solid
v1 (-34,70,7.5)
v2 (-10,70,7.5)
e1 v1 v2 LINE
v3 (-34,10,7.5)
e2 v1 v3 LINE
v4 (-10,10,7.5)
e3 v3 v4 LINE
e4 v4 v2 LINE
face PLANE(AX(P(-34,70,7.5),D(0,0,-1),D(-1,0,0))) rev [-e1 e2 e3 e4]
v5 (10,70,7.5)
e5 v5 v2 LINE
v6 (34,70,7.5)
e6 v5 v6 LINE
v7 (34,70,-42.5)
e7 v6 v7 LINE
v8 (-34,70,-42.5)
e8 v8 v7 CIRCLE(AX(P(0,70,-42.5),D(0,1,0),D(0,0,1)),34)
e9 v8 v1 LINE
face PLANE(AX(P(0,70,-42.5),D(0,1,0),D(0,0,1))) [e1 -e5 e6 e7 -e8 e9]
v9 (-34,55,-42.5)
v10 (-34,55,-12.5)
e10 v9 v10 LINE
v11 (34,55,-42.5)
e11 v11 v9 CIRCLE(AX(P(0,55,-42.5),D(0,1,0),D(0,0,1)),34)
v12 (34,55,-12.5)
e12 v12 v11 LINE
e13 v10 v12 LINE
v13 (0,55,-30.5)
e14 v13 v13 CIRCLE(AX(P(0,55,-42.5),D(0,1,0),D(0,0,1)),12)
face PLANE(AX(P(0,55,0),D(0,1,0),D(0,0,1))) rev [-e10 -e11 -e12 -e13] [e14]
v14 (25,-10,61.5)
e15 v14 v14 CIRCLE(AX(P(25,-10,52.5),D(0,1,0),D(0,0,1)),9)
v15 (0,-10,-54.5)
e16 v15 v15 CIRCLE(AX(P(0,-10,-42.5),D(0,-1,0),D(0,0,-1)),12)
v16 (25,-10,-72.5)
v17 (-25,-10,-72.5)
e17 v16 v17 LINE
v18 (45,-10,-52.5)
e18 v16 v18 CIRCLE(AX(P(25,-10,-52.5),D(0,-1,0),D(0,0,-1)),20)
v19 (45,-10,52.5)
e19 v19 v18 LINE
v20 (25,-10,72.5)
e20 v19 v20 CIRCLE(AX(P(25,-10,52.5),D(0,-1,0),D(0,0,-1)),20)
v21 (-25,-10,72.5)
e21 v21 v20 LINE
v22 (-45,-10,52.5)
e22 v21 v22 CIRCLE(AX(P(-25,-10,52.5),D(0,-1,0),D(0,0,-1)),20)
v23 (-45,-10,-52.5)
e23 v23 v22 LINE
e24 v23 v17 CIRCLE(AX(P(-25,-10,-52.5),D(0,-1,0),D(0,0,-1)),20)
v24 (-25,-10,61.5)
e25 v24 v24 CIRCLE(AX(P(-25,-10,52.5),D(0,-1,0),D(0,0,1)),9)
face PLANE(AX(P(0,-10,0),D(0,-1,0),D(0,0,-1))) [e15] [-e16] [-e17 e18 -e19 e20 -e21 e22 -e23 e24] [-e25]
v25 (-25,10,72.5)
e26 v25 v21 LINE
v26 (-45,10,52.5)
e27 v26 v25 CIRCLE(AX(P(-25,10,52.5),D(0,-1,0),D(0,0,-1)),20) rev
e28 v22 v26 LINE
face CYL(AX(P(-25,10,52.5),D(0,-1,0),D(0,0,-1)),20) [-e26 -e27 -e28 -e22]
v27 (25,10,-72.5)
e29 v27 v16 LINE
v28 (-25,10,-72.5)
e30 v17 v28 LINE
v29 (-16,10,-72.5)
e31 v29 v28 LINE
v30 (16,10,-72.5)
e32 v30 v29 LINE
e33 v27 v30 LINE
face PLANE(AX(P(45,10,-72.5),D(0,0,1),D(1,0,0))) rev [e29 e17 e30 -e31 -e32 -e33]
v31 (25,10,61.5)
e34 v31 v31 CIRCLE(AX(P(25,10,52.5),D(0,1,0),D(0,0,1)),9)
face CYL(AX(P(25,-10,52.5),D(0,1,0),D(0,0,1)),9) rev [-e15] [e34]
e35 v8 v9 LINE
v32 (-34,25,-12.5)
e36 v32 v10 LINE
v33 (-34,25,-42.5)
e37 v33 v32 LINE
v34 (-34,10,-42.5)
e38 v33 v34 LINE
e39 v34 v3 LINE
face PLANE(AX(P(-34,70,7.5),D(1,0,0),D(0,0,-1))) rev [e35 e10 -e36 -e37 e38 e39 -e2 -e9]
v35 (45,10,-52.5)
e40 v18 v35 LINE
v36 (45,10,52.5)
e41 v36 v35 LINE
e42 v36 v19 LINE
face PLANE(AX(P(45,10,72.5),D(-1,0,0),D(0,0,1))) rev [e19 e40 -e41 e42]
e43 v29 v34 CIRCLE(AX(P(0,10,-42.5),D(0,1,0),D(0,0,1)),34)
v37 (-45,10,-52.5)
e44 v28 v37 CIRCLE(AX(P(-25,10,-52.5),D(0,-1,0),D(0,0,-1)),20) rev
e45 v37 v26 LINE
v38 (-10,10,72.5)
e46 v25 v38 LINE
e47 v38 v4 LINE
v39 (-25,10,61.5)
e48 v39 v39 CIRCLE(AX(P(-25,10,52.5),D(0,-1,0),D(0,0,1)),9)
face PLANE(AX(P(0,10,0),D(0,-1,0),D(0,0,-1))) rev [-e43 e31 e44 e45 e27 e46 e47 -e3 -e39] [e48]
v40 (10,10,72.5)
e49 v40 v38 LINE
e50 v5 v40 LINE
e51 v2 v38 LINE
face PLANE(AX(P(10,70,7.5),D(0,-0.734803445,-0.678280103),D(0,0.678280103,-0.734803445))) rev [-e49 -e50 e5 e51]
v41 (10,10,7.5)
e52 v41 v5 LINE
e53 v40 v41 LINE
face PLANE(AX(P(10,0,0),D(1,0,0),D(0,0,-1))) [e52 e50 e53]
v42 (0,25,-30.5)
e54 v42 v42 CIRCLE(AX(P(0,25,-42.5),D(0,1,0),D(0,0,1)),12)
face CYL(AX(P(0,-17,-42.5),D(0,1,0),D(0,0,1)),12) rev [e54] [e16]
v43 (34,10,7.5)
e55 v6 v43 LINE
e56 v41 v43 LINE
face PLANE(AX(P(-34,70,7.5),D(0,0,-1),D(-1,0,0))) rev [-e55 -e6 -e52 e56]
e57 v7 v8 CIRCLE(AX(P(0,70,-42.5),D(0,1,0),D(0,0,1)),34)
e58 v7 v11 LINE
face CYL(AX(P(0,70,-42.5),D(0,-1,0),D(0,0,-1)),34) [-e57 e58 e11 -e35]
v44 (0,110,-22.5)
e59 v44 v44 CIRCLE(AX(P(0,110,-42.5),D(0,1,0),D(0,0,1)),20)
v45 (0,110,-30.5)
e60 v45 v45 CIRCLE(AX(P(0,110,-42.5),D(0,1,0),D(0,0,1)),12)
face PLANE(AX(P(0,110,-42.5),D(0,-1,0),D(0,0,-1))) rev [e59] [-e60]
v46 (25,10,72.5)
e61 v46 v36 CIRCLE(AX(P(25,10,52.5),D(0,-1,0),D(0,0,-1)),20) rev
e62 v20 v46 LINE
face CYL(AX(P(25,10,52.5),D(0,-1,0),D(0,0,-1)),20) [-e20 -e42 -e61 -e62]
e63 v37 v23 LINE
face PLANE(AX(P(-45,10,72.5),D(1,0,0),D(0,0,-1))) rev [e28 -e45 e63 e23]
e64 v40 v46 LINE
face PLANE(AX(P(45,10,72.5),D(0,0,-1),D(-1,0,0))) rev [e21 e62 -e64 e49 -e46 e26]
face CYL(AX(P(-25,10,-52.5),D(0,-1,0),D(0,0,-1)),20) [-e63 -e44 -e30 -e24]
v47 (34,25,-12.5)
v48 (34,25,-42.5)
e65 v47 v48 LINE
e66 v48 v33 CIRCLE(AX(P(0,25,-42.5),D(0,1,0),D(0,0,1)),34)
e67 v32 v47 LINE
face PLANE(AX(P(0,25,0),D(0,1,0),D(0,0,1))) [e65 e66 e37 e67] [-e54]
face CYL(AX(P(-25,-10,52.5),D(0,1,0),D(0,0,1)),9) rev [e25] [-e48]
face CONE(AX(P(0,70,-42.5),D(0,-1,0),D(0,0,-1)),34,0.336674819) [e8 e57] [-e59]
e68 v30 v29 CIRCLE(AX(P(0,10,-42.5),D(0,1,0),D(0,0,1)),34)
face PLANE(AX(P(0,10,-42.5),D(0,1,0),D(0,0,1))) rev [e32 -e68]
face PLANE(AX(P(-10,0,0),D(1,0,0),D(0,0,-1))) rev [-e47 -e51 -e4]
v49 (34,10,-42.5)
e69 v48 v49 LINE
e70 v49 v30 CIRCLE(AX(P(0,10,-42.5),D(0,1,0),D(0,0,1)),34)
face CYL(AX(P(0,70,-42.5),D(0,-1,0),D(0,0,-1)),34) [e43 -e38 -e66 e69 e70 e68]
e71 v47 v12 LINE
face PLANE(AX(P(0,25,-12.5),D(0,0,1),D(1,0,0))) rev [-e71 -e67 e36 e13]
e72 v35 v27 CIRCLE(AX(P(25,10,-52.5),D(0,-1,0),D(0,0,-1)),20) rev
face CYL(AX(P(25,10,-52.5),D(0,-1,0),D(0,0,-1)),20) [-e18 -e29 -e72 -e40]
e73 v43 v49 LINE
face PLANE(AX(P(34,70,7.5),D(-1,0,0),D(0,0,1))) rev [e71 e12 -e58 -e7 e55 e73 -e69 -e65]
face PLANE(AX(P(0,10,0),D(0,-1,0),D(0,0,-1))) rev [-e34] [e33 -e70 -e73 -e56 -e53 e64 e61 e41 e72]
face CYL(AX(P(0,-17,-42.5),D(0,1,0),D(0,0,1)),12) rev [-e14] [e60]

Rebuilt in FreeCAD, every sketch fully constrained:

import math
import FreeCAD as App
import Part
import Sketcher
Q = App.Units.Quantity


def edges_at(feature, points):
    """Names of the edges that pass closest to the given points."""
    edges = feature.Shape.Edges
    near = lambda p: min(range(len(edges)), key=lambda i: edges[i].distToShape(Part.Vertex(*p))[0])
    return sorted({f"Edge{near(p) + 1}" for p in points})


def add_polygon(sketch, points):
    """Adds a closed chain of lines whose ends are joined by coincident constraints."""
    first, n = sketch.GeometryCount, len(points)
    for a, b in zip(points, points[1:] + points[:1]):
        sketch.addGeometry(Part.LineSegment(App.Vector(*a, 0), App.Vector(*b, 0)), False)
    for i in range(n):
        sketch.addConstraint(Sketcher.Constraint("Coincident", first + i, 2, first + (i + 1) % n, 1))

doc = App.newDocument("Part")
body = doc.addObject("PartDesign::Body", "Body")

sketch1 = doc.addObject("Sketcher::SketchObject", "Sketch")
body.addObject(sketch1)
sketch1.AttachmentSupport = (doc.XZ_Plane, [""])
sketch1.MapMode = "FlatFace"
add_polygon(sketch1, [(-45, -72), (-45, 72), (45, 72), (45, -72)])
sketch1.addConstraint([
    Sketcher.Constraint("Vertical", 0),
    Sketcher.Constraint("Horizontal", 1),
    Sketcher.Constraint("Vertical", 2),
    Sketcher.Constraint("Horizontal", 3),
    Sketcher.Constraint("Symmetric", 0, 2, 2, 2, -1, 1),
    Sketcher.Constraint("DistanceX", 1, 1, 1, 2, Q("90 mm")),
    Sketcher.Constraint("DistanceY", 0, 1, 0, 2, Q("145 mm")),
])
pad1 = doc.addObject("PartDesign::Pad", "Pad")
body.addObject(pad1)
pad1.Profile = sketch1
pad1.Length = 20
pad1.Midplane = True
doc.recompute()

fillet = doc.addObject("PartDesign::Fillet", "Fillet")
body.addObject(fillet)
fillet.Base = (pad1, edges_at(pad1, [
    (45, 0, -72.5),
    (45, 0, 72.5),
    (-45, 0, 72.5),
    (-45, 0, -72.5),
]))
fillet.Radius = 20

sketch2 = doc.addObject("Sketcher::SketchObject", "Sketch001")
body.addObject(sketch2)
sketch2.AttachmentSupport = (doc.XZ_Plane, [""])
sketch2.MapMode = "FlatFace"
sketch2.AttachmentOffset = App.Placement(App.Vector(0, 0, -10), App.Rotation())
sketch2.addGeometry([
    Part.LineSegment(App.Vector(-34, -42, 0), App.Vector(-34, 8, 0)),
    Part.LineSegment(App.Vector(-34, 8, 0), App.Vector(34, 8, 0)),
    Part.LineSegment(App.Vector(34, 8, 0), App.Vector(34, -42, 0)),
    Part.ArcOfCircle(Part.Circle(App.Vector(0, -42, 0), App.Vector(0, 0, 1), 34), math.radians(180), math.radians(360)),
], False)
sketch2.addConstraint([
    Sketcher.Constraint("Coincident", 0, 2, 1, 1),
    Sketcher.Constraint("Coincident", 1, 2, 2, 1),
    Sketcher.Constraint("Tangent", 2, 2, 3, 2),
    Sketcher.Constraint("Tangent", 3, 1, 0, 1),
    Sketcher.Constraint("Vertical", 0),
    Sketcher.Constraint("Horizontal", 1),
    Sketcher.Constraint("Vertical", 2),
    Sketcher.Constraint("PointOnObject", 3, 3, -2),
    Sketcher.Constraint("Radius", 3, Q("34 mm")),
    Sketcher.Constraint("DistanceY", 0, 1, 0, 2, Q("50 mm")),
    Sketcher.Constraint("DistanceY", 3, 3, -1, 1, Q("42.5 mm")),
])
pad2 = doc.addObject("PartDesign::Pad", "Pad001")
body.addObject(pad2)
pad2.Profile = sketch2
pad2.Length = 60
pad2.Reversed = True

sketch3 = doc.addObject("Sketcher::SketchObject", "Sketch002")
body.addObject(sketch3)
sketch3.AttachmentSupport = (doc.XZ_Plane, [""])
sketch3.MapMode = "FlatFace"
sketch3.AttachmentOffset = App.Placement(App.Vector(0, 0, -25), App.Rotation())
sketch3.addGeometry([
    Part.LineSegment(App.Vector(-34, -42, 0), App.Vector(-34, -12, 0)),
    Part.LineSegment(App.Vector(-34, -12, 0), App.Vector(34, -12, 0)),
    Part.LineSegment(App.Vector(34, -12, 0), App.Vector(34, -42, 0)),
    Part.ArcOfCircle(Part.Circle(App.Vector(0, -42, 0), App.Vector(0, 0, 1), 34), math.radians(180), math.radians(360)),
], False)
sketch3.addConstraint([
    Sketcher.Constraint("Coincident", 0, 2, 1, 1),
    Sketcher.Constraint("Coincident", 1, 2, 2, 1),
    Sketcher.Constraint("Tangent", 2, 2, 3, 2),
    Sketcher.Constraint("Tangent", 3, 1, 0, 1),
    Sketcher.Constraint("Vertical", 0),
    Sketcher.Constraint("Horizontal", 1),
    Sketcher.Constraint("Vertical", 2),
    Sketcher.Constraint("PointOnObject", 3, 3, -2),
    Sketcher.Constraint("Radius", 3, Q("34 mm")),
    Sketcher.Constraint("DistanceY", 0, 1, 0, 2, Q("30 mm")),
    Sketcher.Constraint("DistanceY", 3, 3, -1, 1, Q("42.5 mm")),
])
pocket1 = doc.addObject("PartDesign::Pocket", "Pocket")
body.addObject(pocket1)
pocket1.Profile = sketch3
pocket1.Length = 30

sketch4 = doc.addObject("Sketcher::SketchObject", "Sketch003")
body.addObject(sketch4)
sketch4.AttachmentSupport = (doc.XY_Plane, [""])
sketch4.MapMode = "FlatFace"
sketch4.AttachmentOffset = App.Placement(App.Vector(0, 0, -42.5), App.Rotation())
add_polygon(sketch4, [(0, 110), (0, 70), (34, 70), (20, 110)])
sketch4.addConstraint([
    Sketcher.Constraint("Vertical", 0),
    Sketcher.Constraint("Horizontal", 1),
    Sketcher.Constraint("Horizontal", 3),
    Sketcher.Constraint("PointOnObject", 0, 2, -2),
    Sketcher.Constraint("DistanceX", 1, 1, 1, 2, Q("34 mm")),
    Sketcher.Constraint("DistanceX", 3, 2, 3, 1, Q("20 mm")),
    Sketcher.Constraint("DistanceY", 0, 2, 0, 1, Q("40 mm")),
    Sketcher.Constraint("DistanceY", -1, 1, 0, 2, Q("70 mm")),
])
revolution = doc.addObject("PartDesign::Revolution", "Revolution")
body.addObject(revolution)
revolution.Profile = sketch4
revolution.ReferenceAxis = (sketch4, ["V_Axis"])
revolution.Angle = 360

sketch5 = doc.addObject("Sketcher::SketchObject", "Sketch004")
body.addObject(sketch5)
sketch5.AttachmentSupport = (doc.XZ_Plane, [""])
sketch5.MapMode = "FlatFace"
sketch5.AttachmentOffset = App.Placement(App.Vector(0, 0, -110), App.Rotation())
sketch5.addGeometry(Part.Circle(App.Vector(0, -42, 0), App.Vector(0, 0, 1), 12), False)
sketch5.addConstraint([
    Sketcher.Constraint("PointOnObject", 0, 3, -2),
    Sketcher.Constraint("Diameter", 0, Q("24 mm")),
    Sketcher.Constraint("DistanceY", 0, 3, -1, 1, Q("42.5 mm")),
])
pocket2 = doc.addObject("PartDesign::Pocket", "Pocket001")
body.addObject(pocket2)
pocket2.Profile = sketch5
pocket2.Length = 127
pocket2.Reversed = True

sketch6 = doc.addObject("Sketcher::SketchObject", "Sketch005")
body.addObject(sketch6)
sketch6.AttachmentSupport = (doc.YZ_Plane, [""])
sketch6.MapMode = "FlatFace"
add_polygon(sketch6, [(70, 8), (10, 72), (10, 8)])
sketch6.addConstraint([
    Sketcher.Constraint("Vertical", 1),
    Sketcher.Constraint("Horizontal", 2),
    Sketcher.Constraint("DistanceX", 2, 1, 2, 2, Q("60 mm")),
    Sketcher.Constraint("DistanceY", 1, 2, 1, 1, Q("65 mm")),
    Sketcher.Constraint("DistanceX", -1, 1, 0, 2, Q("10 mm")),
    Sketcher.Constraint("DistanceY", -1, 1, 0, 2, Q("72.5 mm")),
])
pad3 = doc.addObject("PartDesign::Pad", "Pad002")
body.addObject(pad3)
pad3.Profile = sketch6
pad3.Length = 20
pad3.Midplane = True

sketch7 = doc.addObject("Sketcher::SketchObject", "Sketch006")
body.addObject(sketch7)
sketch7.AttachmentSupport = (doc.XZ_Plane, [""])
sketch7.MapMode = "FlatFace"
sketch7.AttachmentOffset = App.Placement(App.Vector(0, 0, -10), App.Rotation())
sketch7.addGeometry(Part.Circle(App.Vector(25, 52, 0), App.Vector(0, 0, 1), 9), False)
sketch7.addConstraint([
    Sketcher.Constraint("Diameter", 0, Q("18 mm")),
    Sketcher.Constraint("DistanceX", -1, 1, 0, 3, Q("25 mm")),
    Sketcher.Constraint("DistanceY", -1, 1, 0, 3, Q("52.5 mm")),
])
pocket3 = doc.addObject("PartDesign::Pocket", "Pocket002")
body.addObject(pocket3)
pocket3.Profile = sketch7
pocket3.Length = 20
pocket3.Reversed = True
doc.recompute()

mirrored = doc.addObject("PartDesign::Mirrored", "Mirrored")
body.addObject(mirrored)
mirrored.Originals = [pocket3]
mirrored.MirrorPlane = (doc.YZ_Plane, [""])
body.Tip = mirrored

doc.recompute()
